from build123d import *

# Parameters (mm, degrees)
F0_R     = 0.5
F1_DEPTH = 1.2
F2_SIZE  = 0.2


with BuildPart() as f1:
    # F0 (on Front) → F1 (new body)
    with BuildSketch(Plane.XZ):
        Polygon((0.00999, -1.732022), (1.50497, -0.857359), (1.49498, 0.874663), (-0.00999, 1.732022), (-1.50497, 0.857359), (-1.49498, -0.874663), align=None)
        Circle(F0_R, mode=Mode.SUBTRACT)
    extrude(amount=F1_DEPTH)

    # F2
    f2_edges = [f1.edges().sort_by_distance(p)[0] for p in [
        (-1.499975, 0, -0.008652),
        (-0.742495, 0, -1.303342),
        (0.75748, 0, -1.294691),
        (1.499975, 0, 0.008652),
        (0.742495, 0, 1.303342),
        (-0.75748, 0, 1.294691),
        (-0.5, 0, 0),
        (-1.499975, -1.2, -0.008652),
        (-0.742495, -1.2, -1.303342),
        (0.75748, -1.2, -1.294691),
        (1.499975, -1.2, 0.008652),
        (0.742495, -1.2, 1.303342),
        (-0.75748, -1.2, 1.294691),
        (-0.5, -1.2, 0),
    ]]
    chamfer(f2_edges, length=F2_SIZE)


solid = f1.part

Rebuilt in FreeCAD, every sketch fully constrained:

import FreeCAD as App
import Part
import Sketcher
from FreeCAD import Vector
Q = App.Units.Quantity


def edges_at(feature, points):
    """Names of the edges that pass closest to the given points."""
    edges = feature.Shape.Edges
    near = lambda p: min(range(len(edges)), key=lambda i: edges[i].distToShape(Part.Vertex(*p))[0])
    return sorted({f"Edge{near(p) + 1}" for p in points})

doc = App.newDocument("Part")
body = doc.addObject("PartDesign::Body", "Body")

sketch1 = body.newObject("Sketcher::SketchObject", "Sketch")
sketch1.AttachmentSupport = (doc.getObject("XZ_Plane"), [""])
sketch1.MapMode = "FlatFace"
sketch1.addGeometry(Part.LineSegment(Vector(0, -1.7, 0), Vector(1.5, -0.9, 0)), False)
sketch1.addGeometry(Part.LineSegment(Vector(1.5, -0.9, 0), Vector(1.5, 0.9, 0)), False)
sketch1.addGeometry(Part.LineSegment(Vector(1.5, 0.9, 0), Vector(0, 1.7, 0)), False)
sketch1.addGeometry(Part.LineSegment(Vector(0, 1.7, 0), Vector(-1.5, 0.9, 0)), False)
sketch1.addGeometry(Part.LineSegment(Vector(-1.5, 0.9, 0), Vector(-1.5, -0.9, 0)), False)
sketch1.addGeometry(Part.LineSegment(Vector(-1.5, -0.9, 0), Vector(0, -1.7, 0)), False)
sketch1.addGeometry(Part.Circle(Vector(0, 0, 0), Vector(0, 0, 1), 0.5), False)
sketch1.addConstraint(Sketcher.Constraint("Coincident", 0, 2, 1, 1))
sketch1.addConstraint(Sketcher.Constraint("Coincident", 1, 2, 2, 1))
sketch1.addConstraint(Sketcher.Constraint("Coincident", 2, 2, 3, 1))
sketch1.addConstraint(Sketcher.Constraint("Coincident", 3, 2, 4, 1))
sketch1.addConstraint(Sketcher.Constraint("Coincident", 4, 2, 5, 1))
sketch1.addConstraint(Sketcher.Constraint("Coincident", 5, 2, 0, 1))
sketch1.addConstraint(Sketcher.Constraint("Coincident", 6, 3, -1, 1))
sketch1.addConstraint(Sketcher.Constraint("Symmetric", 0, 2, 3, 2, -1, 1))
sketch1.addConstraint(Sketcher.Constraint("Symmetric", 1, 2, 4, 2, -1, 1))
sketch1.addConstraint(Sketcher.Constraint("Symmetric", 2, 2, 5, 2, -1, 1))
sketch1.addConstraint(Sketcher.Constraint("Equal", 0, 1))
sketch1.addConstraint(Sketcher.Constraint("Equal", 1, 2))
sketch1.addConstraint(Sketcher.Constraint("Diameter", 6, Q("1 mm")))
sketch1.addConstraint(Sketcher.Constraint("Distance", 0, Q("1.732051 mm")))
sketch1.addConstraint(Sketcher.Constraint("DistanceX", -1, 1, 0, 2, Q("1.50497 mm")))
sketch1.addConstraint(Sketcher.Constraint("DistanceY", 0, 2, -1, 1, Q("0.857359 mm")))
sketch1.addConstraint(Sketcher.Constraint("DistanceX", -1, 1, 1, 2, Q("1.49498 mm")))
pad1 = body.newObject("PartDesign::Pad", "Pad")
pad1.Profile = sketch1
pad1.Length = 1.2
doc.recompute()

chamfer = body.newObject("PartDesign::Chamfer", "Chamfer")
chamfer.Base = (pad1, edges_at(pad1, [
    (-1.5, 0, -0.009),
    (-0.742, 0, -1.303),
    (0.757, 0, -1.295),
    (1.5, 0, 0.009),
    (0.742, 0, 1.303),
    (-0.757, 0, 1.295),
    (-0.5, 0, 0),
    (-1.5, -1.2, -0.009),
    (-0.742, -1.2, -1.303),
    (0.757, -1.2, -1.295),
    (1.5, -1.2, 0.009),
    (0.742, -1.2, 1.303),
    (-0.757, -1.2, 1.295),
    (-0.5, -1.2, 0),
]))
chamfer.Size = 0.2

doc.recompute()
